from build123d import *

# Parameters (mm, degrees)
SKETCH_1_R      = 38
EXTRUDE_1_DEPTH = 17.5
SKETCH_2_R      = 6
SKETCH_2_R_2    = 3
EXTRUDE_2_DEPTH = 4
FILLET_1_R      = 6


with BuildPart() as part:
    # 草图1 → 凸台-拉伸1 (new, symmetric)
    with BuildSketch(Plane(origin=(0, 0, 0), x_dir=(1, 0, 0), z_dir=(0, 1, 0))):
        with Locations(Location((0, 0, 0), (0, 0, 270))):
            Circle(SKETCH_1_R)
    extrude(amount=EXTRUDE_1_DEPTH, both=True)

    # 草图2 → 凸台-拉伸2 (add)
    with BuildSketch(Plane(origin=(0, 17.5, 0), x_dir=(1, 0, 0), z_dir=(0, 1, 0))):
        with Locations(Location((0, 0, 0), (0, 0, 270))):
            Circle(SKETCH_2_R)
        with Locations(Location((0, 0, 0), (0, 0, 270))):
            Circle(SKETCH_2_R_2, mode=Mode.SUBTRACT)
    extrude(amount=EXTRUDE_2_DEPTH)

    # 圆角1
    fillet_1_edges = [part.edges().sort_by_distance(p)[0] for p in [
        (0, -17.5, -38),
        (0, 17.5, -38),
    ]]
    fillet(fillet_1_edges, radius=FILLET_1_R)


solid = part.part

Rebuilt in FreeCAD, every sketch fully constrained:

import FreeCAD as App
import Part
import Sketcher

V = App.Vector
Q = App.Units.Quantity


def edges_at(feature, points):
    """Names of the edges that pass closest to the given points."""
    edges = feature.Shape.Edges
    near = lambda p: min(range(len(edges)), key=lambda i: edges[i].distToShape(Part.Vertex(*p))[0])
    return sorted({f"Edge{near(p) + 1}" for p in points})

doc = App.newDocument("Part")
body = doc.addObject("PartDesign::Body", "Body")

sketch1 = body.newObject("Sketcher::SketchObject", "Sketch")
sketch1.AttachmentSupport = (doc.getObject("XZ_Plane"), [""])
sketch1.MapMode = "FlatFace"
sketch1.addGeometry(Part.Circle(V(0, 0, 0), V(0, 0, 1), 38), False)
sketch1.addConstraint(Sketcher.Constraint("Coincident", 0, 3, -1, 1))
sketch1.addConstraint(Sketcher.Constraint("Diameter", 0, Q("76 mm")))
pad1 = body.newObject("PartDesign::Pad", "Pad")
pad1.Profile = sketch1
pad1.Length = 35
pad1.Midplane = True

sketch2 = body.newObject("Sketcher::SketchObject", "Sketch001")
sketch2.AttachmentSupport = (doc.getObject("XZ_Plane"), [""])
sketch2.MapMode = "FlatFace"
sketch2.AttachmentOffset = App.Placement(V(0, 0, -17.5), App.Rotation())
sketch2.addGeometry(Part.Circle(V(0, 0, 0), V(0, 0, 1), 6), False)
sketch2.addGeometry(Part.Circle(V(0, 0, 0), V(0, 0, 1), 3), False)
sketch2.addConstraint(Sketcher.Constraint("Coincident", 0, 3, -1, 1))
sketch2.addConstraint(Sketcher.Constraint("Coincident", 1, 3, -1, 1))
sketch2.addConstraint(Sketcher.Constraint("Diameter", 0, Q("12 mm")))
sketch2.addConstraint(Sketcher.Constraint("Diameter", 1, Q("6 mm")))
pad2 = body.newObject("PartDesign::Pad", "Pad001")
pad2.Profile = sketch2
pad2.Length = 4
pad2.Reversed = True
doc.recompute()

fillet = body.newObject("PartDesign::Fillet", "Fillet")
fillet.Base = (pad2, edges_at(pad2, [(0, -17.5, -38), (0, 17.5, -38)]))
fillet.Radius = 6

doc.recompute()
